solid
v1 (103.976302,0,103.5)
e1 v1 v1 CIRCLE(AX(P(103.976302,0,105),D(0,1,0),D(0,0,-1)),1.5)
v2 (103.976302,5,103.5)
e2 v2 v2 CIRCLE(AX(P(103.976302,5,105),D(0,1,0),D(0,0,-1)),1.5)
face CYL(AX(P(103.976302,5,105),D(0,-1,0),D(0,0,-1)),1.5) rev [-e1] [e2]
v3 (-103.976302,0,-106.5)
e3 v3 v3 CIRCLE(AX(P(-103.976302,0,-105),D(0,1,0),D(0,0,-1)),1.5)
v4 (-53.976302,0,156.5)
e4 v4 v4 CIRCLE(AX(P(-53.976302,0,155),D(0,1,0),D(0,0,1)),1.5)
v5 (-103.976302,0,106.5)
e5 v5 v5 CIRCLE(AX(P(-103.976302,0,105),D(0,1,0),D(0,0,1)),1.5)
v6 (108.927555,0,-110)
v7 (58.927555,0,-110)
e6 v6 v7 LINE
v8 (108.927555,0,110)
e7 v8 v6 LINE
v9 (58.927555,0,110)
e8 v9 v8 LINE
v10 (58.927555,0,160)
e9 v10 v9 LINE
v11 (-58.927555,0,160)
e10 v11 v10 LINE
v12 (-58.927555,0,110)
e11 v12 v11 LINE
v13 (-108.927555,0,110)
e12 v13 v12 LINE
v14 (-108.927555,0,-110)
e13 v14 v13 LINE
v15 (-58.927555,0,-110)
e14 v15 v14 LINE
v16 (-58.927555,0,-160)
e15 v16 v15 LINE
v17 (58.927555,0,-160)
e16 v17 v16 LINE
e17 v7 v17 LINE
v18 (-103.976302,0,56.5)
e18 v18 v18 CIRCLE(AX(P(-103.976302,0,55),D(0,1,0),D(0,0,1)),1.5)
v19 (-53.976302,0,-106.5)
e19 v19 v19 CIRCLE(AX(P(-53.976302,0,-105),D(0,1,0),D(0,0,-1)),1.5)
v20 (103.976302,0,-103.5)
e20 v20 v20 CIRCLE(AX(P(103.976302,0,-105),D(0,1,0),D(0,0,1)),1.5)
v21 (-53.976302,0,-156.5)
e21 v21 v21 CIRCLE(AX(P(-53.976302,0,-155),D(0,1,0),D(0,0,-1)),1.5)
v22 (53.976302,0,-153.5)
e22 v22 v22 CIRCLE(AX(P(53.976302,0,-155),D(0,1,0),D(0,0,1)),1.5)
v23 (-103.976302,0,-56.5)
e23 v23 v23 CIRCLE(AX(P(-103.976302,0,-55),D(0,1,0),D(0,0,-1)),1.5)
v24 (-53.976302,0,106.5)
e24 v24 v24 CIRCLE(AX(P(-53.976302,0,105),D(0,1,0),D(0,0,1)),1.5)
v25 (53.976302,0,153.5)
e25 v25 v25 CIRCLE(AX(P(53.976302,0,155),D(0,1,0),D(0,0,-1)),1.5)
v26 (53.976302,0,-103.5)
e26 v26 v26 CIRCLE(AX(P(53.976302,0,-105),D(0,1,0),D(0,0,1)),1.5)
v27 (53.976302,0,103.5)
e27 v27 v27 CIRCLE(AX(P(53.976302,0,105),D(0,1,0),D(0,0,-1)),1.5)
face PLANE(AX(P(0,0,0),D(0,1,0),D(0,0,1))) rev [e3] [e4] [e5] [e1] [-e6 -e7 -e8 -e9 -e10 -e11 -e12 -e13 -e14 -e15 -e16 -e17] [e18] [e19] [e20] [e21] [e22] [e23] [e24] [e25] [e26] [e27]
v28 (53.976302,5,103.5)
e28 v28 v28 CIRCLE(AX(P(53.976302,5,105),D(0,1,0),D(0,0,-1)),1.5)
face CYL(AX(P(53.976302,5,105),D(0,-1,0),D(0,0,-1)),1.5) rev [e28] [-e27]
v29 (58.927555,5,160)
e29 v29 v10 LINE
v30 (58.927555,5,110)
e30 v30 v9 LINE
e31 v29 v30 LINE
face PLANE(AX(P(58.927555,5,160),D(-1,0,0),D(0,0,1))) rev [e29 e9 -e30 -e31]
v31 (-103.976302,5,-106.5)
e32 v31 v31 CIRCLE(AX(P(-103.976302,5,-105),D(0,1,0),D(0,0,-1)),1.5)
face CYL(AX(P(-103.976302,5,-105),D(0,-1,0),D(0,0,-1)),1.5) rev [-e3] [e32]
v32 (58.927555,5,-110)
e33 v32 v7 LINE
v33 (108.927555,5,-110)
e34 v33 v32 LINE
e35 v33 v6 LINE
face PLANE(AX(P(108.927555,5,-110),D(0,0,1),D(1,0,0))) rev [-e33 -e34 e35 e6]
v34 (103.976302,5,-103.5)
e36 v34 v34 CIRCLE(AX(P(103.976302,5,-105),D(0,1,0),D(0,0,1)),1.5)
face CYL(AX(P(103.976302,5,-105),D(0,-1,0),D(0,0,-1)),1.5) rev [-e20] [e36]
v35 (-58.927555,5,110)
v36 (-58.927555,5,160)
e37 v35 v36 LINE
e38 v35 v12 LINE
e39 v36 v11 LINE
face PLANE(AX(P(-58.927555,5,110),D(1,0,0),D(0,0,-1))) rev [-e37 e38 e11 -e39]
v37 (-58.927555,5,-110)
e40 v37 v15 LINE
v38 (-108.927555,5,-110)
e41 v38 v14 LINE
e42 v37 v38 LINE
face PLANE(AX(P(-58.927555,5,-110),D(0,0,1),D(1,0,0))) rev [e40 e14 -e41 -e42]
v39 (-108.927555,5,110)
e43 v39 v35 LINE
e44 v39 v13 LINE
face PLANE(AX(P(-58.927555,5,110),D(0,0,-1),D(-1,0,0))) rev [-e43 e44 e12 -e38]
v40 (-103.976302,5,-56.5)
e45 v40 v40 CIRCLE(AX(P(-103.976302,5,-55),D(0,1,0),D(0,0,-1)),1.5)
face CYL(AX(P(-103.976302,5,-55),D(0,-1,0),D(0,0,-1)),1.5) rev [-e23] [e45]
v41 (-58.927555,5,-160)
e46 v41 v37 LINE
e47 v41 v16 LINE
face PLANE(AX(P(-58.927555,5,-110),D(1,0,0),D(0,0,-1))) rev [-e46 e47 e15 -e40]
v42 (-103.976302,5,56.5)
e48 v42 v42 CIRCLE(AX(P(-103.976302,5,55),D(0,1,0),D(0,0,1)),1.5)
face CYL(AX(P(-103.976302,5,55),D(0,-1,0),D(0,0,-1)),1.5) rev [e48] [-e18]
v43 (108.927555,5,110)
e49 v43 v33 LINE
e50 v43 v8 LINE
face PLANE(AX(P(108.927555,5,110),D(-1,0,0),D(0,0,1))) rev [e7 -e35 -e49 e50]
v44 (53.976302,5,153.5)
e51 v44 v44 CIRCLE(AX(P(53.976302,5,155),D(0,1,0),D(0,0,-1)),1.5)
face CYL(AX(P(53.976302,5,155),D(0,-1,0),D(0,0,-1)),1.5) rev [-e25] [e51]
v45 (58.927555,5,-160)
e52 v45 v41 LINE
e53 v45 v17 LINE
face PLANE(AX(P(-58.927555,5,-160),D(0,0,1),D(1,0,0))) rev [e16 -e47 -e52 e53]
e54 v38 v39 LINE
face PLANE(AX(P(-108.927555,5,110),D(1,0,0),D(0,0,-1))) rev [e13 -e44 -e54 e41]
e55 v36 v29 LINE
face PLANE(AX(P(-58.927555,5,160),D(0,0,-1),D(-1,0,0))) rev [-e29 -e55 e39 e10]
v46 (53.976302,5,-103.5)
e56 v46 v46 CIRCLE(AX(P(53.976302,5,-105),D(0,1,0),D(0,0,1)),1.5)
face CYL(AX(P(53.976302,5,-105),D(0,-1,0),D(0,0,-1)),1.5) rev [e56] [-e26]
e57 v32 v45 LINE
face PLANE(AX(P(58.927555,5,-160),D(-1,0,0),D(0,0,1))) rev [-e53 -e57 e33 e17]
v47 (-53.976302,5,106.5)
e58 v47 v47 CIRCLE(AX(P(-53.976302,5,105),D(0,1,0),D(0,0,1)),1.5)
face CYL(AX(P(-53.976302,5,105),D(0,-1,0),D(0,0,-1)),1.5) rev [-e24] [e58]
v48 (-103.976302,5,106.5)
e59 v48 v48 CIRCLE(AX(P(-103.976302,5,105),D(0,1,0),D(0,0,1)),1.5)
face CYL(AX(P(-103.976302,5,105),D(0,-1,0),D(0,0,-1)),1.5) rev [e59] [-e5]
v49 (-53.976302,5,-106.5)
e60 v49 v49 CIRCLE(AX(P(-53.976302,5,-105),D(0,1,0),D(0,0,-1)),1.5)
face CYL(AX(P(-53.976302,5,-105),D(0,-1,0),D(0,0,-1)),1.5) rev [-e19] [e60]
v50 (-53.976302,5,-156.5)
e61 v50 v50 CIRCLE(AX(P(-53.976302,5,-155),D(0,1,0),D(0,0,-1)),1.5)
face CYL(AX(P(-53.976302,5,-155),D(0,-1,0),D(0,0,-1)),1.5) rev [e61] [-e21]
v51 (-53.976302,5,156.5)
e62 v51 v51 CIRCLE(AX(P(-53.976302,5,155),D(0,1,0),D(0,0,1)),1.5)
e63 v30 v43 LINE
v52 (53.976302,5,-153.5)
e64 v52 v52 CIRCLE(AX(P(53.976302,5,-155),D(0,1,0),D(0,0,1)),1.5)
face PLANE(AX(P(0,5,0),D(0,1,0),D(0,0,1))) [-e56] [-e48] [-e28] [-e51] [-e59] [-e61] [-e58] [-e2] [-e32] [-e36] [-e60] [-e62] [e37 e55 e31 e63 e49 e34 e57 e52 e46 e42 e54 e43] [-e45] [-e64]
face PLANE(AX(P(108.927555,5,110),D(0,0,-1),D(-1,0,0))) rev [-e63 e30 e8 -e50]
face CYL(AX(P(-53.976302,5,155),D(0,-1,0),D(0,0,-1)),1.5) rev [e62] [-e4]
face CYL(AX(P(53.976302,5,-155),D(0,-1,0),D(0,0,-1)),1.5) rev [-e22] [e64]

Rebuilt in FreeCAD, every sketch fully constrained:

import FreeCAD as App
import Part
import Sketcher
from FreeCAD import Vector


def add_polygon(sketch, points):
    """Adds a closed chain of lines whose ends are joined by coincident constraints."""
    first, n = sketch.GeometryCount, len(points)
    for a, b in zip(points, points[1:] + points[:1]):
        sketch.addGeometry(Part.LineSegment(App.Vector(*a, 0), App.Vector(*b, 0)), False)
    for i in range(n):
        sketch.addConstraint(Sketcher.Constraint("Coincident", first + i, 2, first + (i + 1) % n, 1))

doc = App.newDocument("Part")
params = doc.addObject("Spreadsheet::Sheet", "Params")
for row, (alias, value) in enumerate([
    ("sketch1_diameter", "3 mm"),
    ("sketch1_width", "50 mm"),
    ("sketch1_height", "220 mm"),
    ("pad1_length", "5 mm"),
], start=1):
    params.set(f"A{row}", alias)
    params.set(f"B{row}", "=" + value)
    params.setAlias(f"B{row}", alias)

body = doc.addObject("PartDesign::Body", "Body")

# Sketch on XZ plane
sketch1 = body.newObject("Sketcher::SketchObject", "Sketch")
sketch1.AttachmentSupport = (doc.getObject("XZ_Plane"), [""])
sketch1.MapMode = "FlatFace"
add_polygon(sketch1, [(-58.9, -160), (-58.9, -110), (-108.9, -110), (-108.9, 110), (-58.9, 110), (-58.9, 160), (58.9, 160), (58.9, 110), (108.9, 110), (108.9, -110), (58.9, -110), (58.9, -160)])  # lines 0-11
sketch1.addGeometry(Part.Circle(Vector(54, 155, 0), Vector(0, 0, 1), 1.5), False)  # 12
sketch1.addGeometry(Part.Circle(Vector(104, 105, 0), Vector(0, 0, 1), 1.5), False)  # 13
sketch1.addGeometry(Part.Circle(Vector(54, 105, 0), Vector(0, 0, 1), 1.5), False)  # 14
sketch1.addGeometry(Part.Circle(Vector(-54, 155, 0), Vector(0, 0, 1), 1.5), False)  # 15
sketch1.addGeometry(Part.Circle(Vector(-54, 105, 0), Vector(0, 0, 1), 1.5), False)  # 16
sketch1.addGeometry(Part.Circle(Vector(-104, 105, 0), Vector(0, 0, 1), 1.5), False)  # 17
sketch1.addGeometry(Part.Circle(Vector(-104, 55, 0), Vector(0, 0, 1), 1.5), False)  # 18
sketch1.addGeometry(Part.Circle(Vector(104, -105, 0), Vector(0, 0, 1), 1.5), False)  # 19
sketch1.addGeometry(Part.Circle(Vector(54, -105, 0), Vector(0, 0, 1), 1.5), False)  # 20
sketch1.addGeometry(Part.Circle(Vector(54, -155, 0), Vector(0, 0, 1), 1.5), False)  # 21
sketch1.addGeometry(Part.Circle(Vector(-104, -55, 0), Vector(0, 0, 1), 1.5), False)  # 22
sketch1.addGeometry(Part.Circle(Vector(-54, -105, 0), Vector(0, 0, 1), 1.5), False)  # 23
sketch1.addGeometry(Part.Circle(Vector(-104, -105, 0), Vector(0, 0, 1), 1.5), False)  # 24
sketch1.addGeometry(Part.Circle(Vector(-54, -155, 0), Vector(0, 0, 1), 1.5), False)  # 25
sketch1.addConstraint(Sketcher.Constraint("Vertical", 0))
sketch1.addConstraint(Sketcher.Constraint("Horizontal", 1))
sketch1.addConstraint(Sketcher.Constraint("Vertical", 2))
sketch1.addConstraint(Sketcher.Constraint("Horizontal", 3))
sketch1.addConstraint(Sketcher.Constraint("Vertical", 4))
sketch1.addConstraint(Sketcher.Constraint("Horizontal", 5))
sketch1.addConstraint(Sketcher.Constraint("Vertical", 6))
sketch1.addConstraint(Sketcher.Constraint("Horizontal", 7))
sketch1.addConstraint(Sketcher.Constraint("Vertical", 8))
sketch1.addConstraint(Sketcher.Constraint("Horizontal", 9))
sketch1.addConstraint(Sketcher.Constraint("Vertical", 10))
sketch1.addConstraint(Sketcher.Constraint("Horizontal", 11))
sketch1.addConstraint(Sketcher.Constraint("Equal", 12, 13))
sketch1.addConstraint(Sketcher.Constraint("Equal", 13, 14))
sketch1.addConstraint(Sketcher.Constraint("Equal", 14, 15))
sketch1.addConstraint(Sketcher.Constraint("Equal", 15, 16))
sketch1.addConstraint(Sketcher.Constraint("Equal", 16, 17))
sketch1.addConstraint(Sketcher.Constraint("Equal", 17, 18))
sketch1.addConstraint(Sketcher.Constraint("Equal", 18, 19))
sketch1.addConstraint(Sketcher.Constraint("Equal", 19, 20))
sketch1.addConstraint(Sketcher.Constraint("Equal", 20, 21))
sketch1.addConstraint(Sketcher.Constraint("Equal", 21, 22))
sketch1.addConstraint(Sketcher.Constraint("Equal", 22, 23))
sketch1.addConstraint(Sketcher.Constraint("Equal", 23, 24))
sketch1.addConstraint(Sketcher.Constraint("Equal", 24, 25))
sketch1.addConstraint(Sketcher.Constraint("Symmetric", 17, 3, 19, 3, -1, 1))
sketch1.addConstraint(Sketcher.Constraint("Symmetric", 16, 3, 20, 3, -1, 1))
sketch1.addConstraint(Sketcher.Constraint("Symmetric", 15, 3, 21, 3, -1, 1))
sketch1.addConstraint(Sketcher.Constraint("Symmetric", 14, 3, 23, 3, -1, 1))
sketch1.addConstraint(Sketcher.Constraint("Symmetric", 13, 3, 24, 3, -1, 1))
sketch1.addConstraint(Sketcher.Constraint("Symmetric", 12, 3, 25, 3, -1, 1))
sketch1.addConstraint(Sketcher.Constraint("Symmetric", 0, 2, 6, 2, -1, 1))
sketch1.addConstraint(Sketcher.Constraint("Symmetric", 2, 2, 8, 2, -1, 1))
sketch1.addConstraint(Sketcher.Constraint("Symmetric", 4, 2, 10, 2, -1, 1))
sketch1.addConstraint(Sketcher.Constraint("Symmetric", 12, 3, 15, 3, -2))
sketch1.addConstraint(Sketcher.Constraint("Symmetric", 14, 3, 16, 3, -2))
sketch1.addConstraint(Sketcher.Constraint("Symmetric", 13, 3, 17, 3, -2))
sketch1.addConstraint(Sketcher.Constraint("Symmetric", 3, 2, 6, 2, -2))
sketch1.addConstraint(Sketcher.Constraint("Symmetric", 18, 3, 22, 3, -1))
sketch1.addConstraint(Sketcher.Constraint("Horizontal", 13, 3, 14, 3))
sketch1.addConstraint(Sketcher.Constraint("Vertical", 12, 3, 14, 3))
sketch1.addConstraint(Sketcher.Constraint("Vertical", 17, 3, 18, 3))
sketch1.addConstraint(Sketcher.Constraint("Equal", 9, 0))
sketch1.addConstraint(Sketcher.Constraint("Diameter", 12, 3.0))
sketch1.addConstraint(Sketcher.Constraint("DistanceX", 1, 2, 1, 1, 50.0))
sketch1.addConstraint(Sketcher.Constraint("DistanceY", 2, 1, 2, 2, 220.0))
sketch1.addConstraint(Sketcher.Constraint("DistanceY", -1, 1, 12, 3, 155.0))
sketch1.addConstraint(Sketcher.Constraint("DistanceY", -1, 1, 13, 3, 105.0))
sketch1.addConstraint(Sketcher.Constraint("DistanceY", -1, 1, 18, 3, 55.0))
sketch1.addConstraint(Sketcher.Constraint("DistanceX", 12, 3, 13, 3, 50.0))
sketch1.addConstraint(Sketcher.Constraint("DistanceX", 5, 1, 5, 2, 117.85511))
sketch1.addConstraint(Sketcher.Constraint("DistanceX", -1, 1, 12, 3, 53.976302))
sketch1.setExpression("Constraints[55]", "Params.sketch1_diameter")
sketch1.setExpression("Constraints[56]", "Params.sketch1_width")
sketch1.setExpression("Constraints[57]", "Params.sketch1_height")
pad1 = body.newObject("PartDesign::Pad", "Pad")
pad1.Profile = sketch1
pad1.setExpression("Length", "Params.pad1_length")
pad1.Reversed = True

doc.recompute()
